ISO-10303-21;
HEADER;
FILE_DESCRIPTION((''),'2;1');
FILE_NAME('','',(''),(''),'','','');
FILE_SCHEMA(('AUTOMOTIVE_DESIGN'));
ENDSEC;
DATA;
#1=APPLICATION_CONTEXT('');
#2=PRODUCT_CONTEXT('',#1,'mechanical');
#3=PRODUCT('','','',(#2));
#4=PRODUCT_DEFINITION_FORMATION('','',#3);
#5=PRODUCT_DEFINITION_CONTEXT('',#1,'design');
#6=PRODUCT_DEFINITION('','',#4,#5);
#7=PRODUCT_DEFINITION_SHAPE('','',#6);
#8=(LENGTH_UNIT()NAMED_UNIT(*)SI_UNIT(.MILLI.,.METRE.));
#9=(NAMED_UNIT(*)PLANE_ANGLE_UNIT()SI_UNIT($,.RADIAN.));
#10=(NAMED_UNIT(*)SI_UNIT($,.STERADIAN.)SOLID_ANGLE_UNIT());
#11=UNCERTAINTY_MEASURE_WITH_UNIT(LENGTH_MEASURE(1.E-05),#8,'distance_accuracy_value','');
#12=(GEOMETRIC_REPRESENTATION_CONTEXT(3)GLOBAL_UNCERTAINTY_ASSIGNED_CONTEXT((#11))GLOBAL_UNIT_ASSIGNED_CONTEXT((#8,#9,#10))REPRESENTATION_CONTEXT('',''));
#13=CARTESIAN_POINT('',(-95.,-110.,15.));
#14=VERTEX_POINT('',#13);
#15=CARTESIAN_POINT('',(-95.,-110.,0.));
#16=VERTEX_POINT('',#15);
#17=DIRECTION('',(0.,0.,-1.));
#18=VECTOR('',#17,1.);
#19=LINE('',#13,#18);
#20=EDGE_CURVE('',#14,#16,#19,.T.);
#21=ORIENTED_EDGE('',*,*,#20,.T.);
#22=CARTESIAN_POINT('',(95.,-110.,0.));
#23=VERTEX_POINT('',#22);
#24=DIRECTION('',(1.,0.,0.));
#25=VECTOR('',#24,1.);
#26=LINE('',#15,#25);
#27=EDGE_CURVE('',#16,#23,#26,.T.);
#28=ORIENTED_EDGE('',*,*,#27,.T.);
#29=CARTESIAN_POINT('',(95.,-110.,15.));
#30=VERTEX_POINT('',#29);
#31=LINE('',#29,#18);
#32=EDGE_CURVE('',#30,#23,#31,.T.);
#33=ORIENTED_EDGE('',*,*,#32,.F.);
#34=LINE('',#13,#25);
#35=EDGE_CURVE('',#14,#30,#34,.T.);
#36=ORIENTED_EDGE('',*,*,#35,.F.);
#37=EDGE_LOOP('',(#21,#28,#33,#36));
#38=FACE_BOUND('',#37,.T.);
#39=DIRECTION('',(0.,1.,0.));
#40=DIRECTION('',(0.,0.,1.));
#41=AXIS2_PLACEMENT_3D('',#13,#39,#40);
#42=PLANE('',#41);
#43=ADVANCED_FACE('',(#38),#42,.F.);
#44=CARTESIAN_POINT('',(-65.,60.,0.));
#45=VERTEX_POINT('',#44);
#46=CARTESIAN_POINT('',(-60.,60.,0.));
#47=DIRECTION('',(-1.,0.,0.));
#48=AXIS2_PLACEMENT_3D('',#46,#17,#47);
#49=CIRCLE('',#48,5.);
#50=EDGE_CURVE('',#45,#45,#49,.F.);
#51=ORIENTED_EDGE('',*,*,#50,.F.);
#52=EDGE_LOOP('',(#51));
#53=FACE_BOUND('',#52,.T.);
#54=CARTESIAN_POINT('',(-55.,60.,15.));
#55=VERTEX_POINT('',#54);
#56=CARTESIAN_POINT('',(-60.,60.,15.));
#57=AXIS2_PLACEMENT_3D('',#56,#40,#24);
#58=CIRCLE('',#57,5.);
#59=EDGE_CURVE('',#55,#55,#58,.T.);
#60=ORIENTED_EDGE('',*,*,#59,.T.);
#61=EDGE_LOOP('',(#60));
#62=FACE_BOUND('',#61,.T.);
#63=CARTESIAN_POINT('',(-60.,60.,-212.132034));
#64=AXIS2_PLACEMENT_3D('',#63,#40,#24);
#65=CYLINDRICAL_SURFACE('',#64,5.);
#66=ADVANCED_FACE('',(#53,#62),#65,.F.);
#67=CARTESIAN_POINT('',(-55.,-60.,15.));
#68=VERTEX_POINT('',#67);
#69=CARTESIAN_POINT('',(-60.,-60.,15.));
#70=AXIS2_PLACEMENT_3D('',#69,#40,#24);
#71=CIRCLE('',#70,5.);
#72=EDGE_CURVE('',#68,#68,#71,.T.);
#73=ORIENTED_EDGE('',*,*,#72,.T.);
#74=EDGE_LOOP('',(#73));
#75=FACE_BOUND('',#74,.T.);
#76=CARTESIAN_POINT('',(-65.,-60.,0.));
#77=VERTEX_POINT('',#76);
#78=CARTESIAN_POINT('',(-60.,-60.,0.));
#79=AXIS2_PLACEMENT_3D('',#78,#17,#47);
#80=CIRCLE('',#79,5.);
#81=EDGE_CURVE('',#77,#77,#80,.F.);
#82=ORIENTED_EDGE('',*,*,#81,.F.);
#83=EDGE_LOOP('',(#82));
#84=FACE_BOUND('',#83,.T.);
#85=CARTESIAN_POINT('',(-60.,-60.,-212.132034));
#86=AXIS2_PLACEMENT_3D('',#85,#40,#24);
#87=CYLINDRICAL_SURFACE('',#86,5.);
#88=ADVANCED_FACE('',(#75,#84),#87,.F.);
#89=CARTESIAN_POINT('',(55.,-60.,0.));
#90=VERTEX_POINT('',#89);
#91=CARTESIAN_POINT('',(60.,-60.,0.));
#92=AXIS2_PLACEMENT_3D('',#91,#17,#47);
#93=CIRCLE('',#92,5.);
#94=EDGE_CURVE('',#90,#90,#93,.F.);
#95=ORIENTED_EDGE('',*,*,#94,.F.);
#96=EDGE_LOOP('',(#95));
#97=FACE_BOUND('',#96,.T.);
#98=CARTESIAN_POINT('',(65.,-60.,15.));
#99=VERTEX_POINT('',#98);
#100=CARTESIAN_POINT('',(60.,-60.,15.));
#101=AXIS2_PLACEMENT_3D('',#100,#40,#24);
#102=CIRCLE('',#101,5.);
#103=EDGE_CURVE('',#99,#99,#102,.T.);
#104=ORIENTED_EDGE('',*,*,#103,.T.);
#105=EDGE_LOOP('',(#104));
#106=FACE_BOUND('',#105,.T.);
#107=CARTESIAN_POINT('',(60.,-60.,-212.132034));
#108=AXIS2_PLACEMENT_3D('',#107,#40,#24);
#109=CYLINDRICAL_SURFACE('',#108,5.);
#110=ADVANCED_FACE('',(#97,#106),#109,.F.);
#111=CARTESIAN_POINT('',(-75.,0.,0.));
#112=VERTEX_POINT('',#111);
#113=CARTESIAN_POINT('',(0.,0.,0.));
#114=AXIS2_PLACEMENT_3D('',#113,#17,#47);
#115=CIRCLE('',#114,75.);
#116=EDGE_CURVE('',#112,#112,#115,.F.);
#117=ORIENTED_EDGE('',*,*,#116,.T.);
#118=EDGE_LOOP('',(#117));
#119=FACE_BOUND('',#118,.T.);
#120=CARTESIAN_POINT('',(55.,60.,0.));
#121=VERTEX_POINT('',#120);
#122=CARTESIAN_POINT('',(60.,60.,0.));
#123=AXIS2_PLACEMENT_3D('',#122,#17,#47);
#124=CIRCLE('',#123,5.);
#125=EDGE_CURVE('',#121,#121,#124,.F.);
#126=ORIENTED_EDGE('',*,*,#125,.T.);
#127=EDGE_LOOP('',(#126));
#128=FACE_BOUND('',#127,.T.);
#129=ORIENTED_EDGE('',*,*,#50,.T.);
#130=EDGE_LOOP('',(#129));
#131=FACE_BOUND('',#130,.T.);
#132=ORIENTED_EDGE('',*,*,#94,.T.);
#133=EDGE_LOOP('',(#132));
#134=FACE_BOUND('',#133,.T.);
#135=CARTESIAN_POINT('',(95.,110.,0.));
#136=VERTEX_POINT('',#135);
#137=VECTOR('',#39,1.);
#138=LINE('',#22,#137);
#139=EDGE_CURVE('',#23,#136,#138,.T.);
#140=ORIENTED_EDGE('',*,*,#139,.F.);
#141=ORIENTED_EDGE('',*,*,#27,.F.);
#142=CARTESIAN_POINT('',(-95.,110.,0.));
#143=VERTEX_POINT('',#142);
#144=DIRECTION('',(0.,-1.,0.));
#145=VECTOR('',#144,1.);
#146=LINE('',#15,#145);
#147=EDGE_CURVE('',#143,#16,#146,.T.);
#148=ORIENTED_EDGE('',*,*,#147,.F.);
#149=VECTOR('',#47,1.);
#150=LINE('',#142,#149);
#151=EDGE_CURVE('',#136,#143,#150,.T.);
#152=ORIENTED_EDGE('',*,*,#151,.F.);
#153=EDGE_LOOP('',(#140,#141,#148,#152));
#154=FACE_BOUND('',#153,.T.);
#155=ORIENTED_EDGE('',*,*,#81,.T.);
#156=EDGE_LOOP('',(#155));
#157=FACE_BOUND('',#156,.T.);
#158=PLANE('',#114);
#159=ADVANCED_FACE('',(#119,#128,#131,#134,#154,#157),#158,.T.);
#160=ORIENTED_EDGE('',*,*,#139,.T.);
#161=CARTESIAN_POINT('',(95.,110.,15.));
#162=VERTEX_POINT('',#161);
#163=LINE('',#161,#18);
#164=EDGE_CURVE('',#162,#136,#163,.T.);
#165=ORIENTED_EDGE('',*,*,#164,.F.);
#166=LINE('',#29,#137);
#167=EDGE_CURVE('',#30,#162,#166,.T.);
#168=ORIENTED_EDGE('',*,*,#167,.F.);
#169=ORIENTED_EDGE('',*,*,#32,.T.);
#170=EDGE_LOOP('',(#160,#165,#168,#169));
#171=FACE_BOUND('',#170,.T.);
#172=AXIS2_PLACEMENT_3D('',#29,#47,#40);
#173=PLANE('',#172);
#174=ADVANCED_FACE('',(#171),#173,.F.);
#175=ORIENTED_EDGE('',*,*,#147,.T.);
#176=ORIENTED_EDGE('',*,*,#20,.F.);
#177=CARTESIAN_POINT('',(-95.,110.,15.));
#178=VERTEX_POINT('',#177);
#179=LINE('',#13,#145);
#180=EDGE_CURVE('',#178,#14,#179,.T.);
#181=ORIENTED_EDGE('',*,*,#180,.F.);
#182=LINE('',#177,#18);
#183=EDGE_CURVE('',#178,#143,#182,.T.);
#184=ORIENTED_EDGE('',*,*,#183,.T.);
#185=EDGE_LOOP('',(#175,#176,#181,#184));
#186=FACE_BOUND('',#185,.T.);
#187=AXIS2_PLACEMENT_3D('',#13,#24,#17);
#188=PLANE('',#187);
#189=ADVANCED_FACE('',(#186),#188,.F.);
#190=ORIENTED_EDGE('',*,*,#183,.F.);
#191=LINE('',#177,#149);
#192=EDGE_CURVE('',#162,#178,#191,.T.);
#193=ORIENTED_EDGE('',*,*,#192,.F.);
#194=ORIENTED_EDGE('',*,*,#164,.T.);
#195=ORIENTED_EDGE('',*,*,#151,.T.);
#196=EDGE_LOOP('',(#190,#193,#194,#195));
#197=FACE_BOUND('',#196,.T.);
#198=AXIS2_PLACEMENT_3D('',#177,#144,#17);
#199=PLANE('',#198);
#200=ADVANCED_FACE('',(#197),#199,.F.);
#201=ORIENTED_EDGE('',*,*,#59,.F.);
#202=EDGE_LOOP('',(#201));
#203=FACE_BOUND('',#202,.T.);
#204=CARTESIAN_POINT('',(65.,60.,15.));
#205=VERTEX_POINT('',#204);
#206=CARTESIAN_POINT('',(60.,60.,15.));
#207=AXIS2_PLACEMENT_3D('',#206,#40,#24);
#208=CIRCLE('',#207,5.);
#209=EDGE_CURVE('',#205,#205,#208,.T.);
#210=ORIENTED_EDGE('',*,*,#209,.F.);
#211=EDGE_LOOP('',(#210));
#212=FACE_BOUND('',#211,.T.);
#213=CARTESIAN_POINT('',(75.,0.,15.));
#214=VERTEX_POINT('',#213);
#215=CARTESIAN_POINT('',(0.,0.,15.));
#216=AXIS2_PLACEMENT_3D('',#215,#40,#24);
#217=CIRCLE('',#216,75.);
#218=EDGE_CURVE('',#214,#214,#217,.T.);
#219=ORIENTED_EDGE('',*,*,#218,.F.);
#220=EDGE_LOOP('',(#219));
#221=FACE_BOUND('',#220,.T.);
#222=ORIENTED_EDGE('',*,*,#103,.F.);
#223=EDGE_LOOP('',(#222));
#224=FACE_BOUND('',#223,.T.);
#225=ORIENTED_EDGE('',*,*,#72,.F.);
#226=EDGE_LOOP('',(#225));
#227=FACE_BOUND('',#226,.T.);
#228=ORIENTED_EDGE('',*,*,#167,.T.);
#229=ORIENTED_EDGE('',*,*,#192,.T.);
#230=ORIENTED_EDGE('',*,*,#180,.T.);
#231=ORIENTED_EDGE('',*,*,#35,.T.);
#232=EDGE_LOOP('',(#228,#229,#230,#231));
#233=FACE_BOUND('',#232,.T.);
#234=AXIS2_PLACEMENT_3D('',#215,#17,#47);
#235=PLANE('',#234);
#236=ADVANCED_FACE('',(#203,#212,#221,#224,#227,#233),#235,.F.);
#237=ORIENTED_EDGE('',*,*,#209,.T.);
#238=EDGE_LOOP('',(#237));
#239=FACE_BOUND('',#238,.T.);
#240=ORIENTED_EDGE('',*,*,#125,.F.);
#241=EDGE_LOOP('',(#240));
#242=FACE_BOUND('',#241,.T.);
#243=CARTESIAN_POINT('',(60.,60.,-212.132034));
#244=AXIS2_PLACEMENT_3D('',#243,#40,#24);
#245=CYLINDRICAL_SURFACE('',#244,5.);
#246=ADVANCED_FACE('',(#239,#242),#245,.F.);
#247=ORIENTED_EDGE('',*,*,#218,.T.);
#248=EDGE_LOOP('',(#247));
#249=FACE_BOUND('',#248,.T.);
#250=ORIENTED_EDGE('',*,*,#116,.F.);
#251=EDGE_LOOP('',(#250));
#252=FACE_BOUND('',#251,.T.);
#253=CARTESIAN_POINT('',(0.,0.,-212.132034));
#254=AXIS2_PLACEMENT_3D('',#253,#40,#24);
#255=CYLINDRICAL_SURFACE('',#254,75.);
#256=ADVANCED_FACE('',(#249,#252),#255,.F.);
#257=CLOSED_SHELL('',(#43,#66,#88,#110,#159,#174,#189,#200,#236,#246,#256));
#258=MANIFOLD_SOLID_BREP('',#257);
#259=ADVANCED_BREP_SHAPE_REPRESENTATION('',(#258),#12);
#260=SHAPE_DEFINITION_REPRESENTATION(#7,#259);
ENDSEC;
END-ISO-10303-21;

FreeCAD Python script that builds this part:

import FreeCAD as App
import Part
import Sketcher
Q = App.Units.Quantity

doc = App.newDocument("Part")
params = doc.addObject("Spreadsheet::Sheet", "Params")
for row, (alias, value) in enumerate([
    ("sketch1_width", "190 mm"),
    ("sketch1_height", "220 mm"),
    ("pad1_length", "15 mm"),
    ("sketch2_diameter", "150 mm"),
    ("sketch2_diameter2", "10 mm"),
    ("pocket1_length", "15 mm"),
], start=1):
    params.set(f"A{row}", alias)
    params.set(f"B{row}", "=" + value)
    params.setAlias(f"B{row}", alias)

body = doc.addObject("PartDesign::Body", "Body")

# Sketch on XY plane
sketch1 = doc.addObject("Sketcher::SketchObject", "Sketch")
body.addObject(sketch1)
sketch1.AttachmentSupport = (doc.XY_Plane, [""])
sketch1.MapMode = "FlatFace"
sketch1.addGeometry(Part.LineSegment(App.Vector(-95, 110, 0), App.Vector(-95, -110, 0)), False)
sketch1.addGeometry(Part.LineSegment(App.Vector(-95, -110, 0), App.Vector(95, -110, 0)), False)
sketch1.addGeometry(Part.LineSegment(App.Vector(95, -110, 0), App.Vector(95, 110, 0)), False)
sketch1.addGeometry(Part.LineSegment(App.Vector(95, 110, 0), App.Vector(-95, 110, 0)), False)
sketch1.addConstraint(Sketcher.Constraint("Coincident", 0, 2, 1, 1))
sketch1.addConstraint(Sketcher.Constraint("Coincident", 1, 2, 2, 1))
sketch1.addConstraint(Sketcher.Constraint("Coincident", 2, 2, 3, 1))
sketch1.addConstraint(Sketcher.Constraint("Coincident", 3, 2, 0, 1))
sketch1.addConstraint(Sketcher.Constraint("Vertical", 0))
sketch1.addConstraint(Sketcher.Constraint("Horizontal", 1))
sketch1.addConstraint(Sketcher.Constraint("Vertical", 2))
sketch1.addConstraint(Sketcher.Constraint("Horizontal", 3))
sketch1.addConstraint(Sketcher.Constraint("Symmetric", 0, 2, 2, 2, -1, 1))
sketch1.addConstraint(Sketcher.Constraint("DistanceX", 1, 1, 1, 2, Q("190 mm")))
sketch1.addConstraint(Sketcher.Constraint("DistanceY", 0, 2, 0, 1, Q("220 mm")))
sketch1.setExpression("Constraints[9]", "Params.sketch1_width")
sketch1.setExpression("Constraints[10]", "Params.sketch1_height")
pad1 = doc.addObject("PartDesign::Pad", "Pad")
body.addObject(pad1)
pad1.Profile = sketch1
pad1.setExpression("Length", "Params.pad1_length")

# Sketch on XY plane
sketch2 = doc.addObject("Sketcher::SketchObject", "Sketch001")
body.addObject(sketch2)
sketch2.AttachmentSupport = (doc.XY_Plane, [""])
sketch2.MapMode = "FlatFace"
sketch2.AttachmentOffset = App.Placement(App.Vector(0, 0, 15), App.Rotation())
sketch2.addGeometry(Part.Circle(App.Vector(0, 0, 0), App.Vector(0, 0, 1), 75), False)
sketch2.addGeometry(Part.Circle(App.Vector(-60, 60, 0), App.Vector(0, 0, 1), 5), False)
sketch2.addGeometry(Part.Circle(App.Vector(60, 60, 0), App.Vector(0, 0, 1), 5), False)
sketch2.addGeometry(Part.Circle(App.Vector(60, -60, 0), App.Vector(0, 0, 1), 5), False)
sketch2.addGeometry(Part.Circle(App.Vector(-60, -60, 0), App.Vector(0, 0, 1), 5), False)
sketch2.addConstraint(Sketcher.Constraint("Coincident", 0, 3, -1, 1))
sketch2.addConstraint(Sketcher.Constraint("Equal", 1, 2))
sketch2.addConstraint(Sketcher.Constraint("Equal", 2, 3))
sketch2.addConstraint(Sketcher.Constraint("Equal", 3, 4))
sketch2.addConstraint(Sketcher.Constraint("Symmetric", 1, 3, 3, 3, -1, 1))
sketch2.addConstraint(Sketcher.Constraint("Symmetric", 2, 3, 4, 3, -1, 1))
sketch2.addConstraint(Sketcher.Constraint("Symmetric", 1, 3, 2, 3, -2))
sketch2.addConstraint(Sketcher.Constraint("Diameter", 0, Q("150 mm")))
sketch2.addConstraint(Sketcher.Constraint("Diameter", 1, Q("10 mm")))
sketch2.addConstraint(Sketcher.Constraint("DistanceX", 1, 3, -1, 1, Q("60 mm")))
sketch2.addConstraint(Sketcher.Constraint("DistanceY", -1, 1, 1, 3, Q("60 mm")))
sketch2.setExpression("Constraints[7]", "Params.sketch2_diameter")
sketch2.setExpression("Constraints[8]", "Params.sketch2_diameter2")
pocket1 = doc.addObject("PartDesign::Pocket", "Pocket")
body.addObject(pocket1)
pocket1.Profile = sketch2
pocket1.setExpression("Length", "Params.pocket1_length")

doc.recompute()
